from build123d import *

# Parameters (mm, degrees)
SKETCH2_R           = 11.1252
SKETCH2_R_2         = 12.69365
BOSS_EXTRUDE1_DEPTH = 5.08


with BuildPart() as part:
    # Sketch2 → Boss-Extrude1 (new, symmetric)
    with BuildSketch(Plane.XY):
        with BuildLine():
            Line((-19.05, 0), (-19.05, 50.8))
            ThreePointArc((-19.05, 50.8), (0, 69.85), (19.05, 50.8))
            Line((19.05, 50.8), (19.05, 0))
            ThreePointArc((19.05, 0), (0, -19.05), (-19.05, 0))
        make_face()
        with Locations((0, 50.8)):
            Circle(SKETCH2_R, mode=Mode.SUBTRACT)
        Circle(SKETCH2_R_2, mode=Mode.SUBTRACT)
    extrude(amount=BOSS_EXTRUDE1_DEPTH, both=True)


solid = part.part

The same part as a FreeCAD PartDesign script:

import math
import FreeCAD as App
import Part
import Sketcher
from FreeCAD import Vector
Q = App.Units.Quantity

doc = App.newDocument("Part")
body = doc.addObject("PartDesign::Body", "Body")

# Sketch on XY plane
sketch1 = doc.addObject("Sketcher::SketchObject", "Sketch")
body.addObject(sketch1)
sketch1.AttachmentSupport = (doc.XY_Plane, [""])
sketch1.MapMode = "FlatFace"
sketch1.addGeometry([
    Part.LineSegment(Vector(-19.05, 50.8, 0), Vector(-19.05, 0, 0)),  # 0
    Part.ArcOfCircle(Part.Circle(Vector(0, 0, 0), Vector(0, 0, 1), 19.05), math.radians(180), math.radians(360)),  # 1
    Part.LineSegment(Vector(19.05, 0, 0), Vector(19.05, 50.8, 0)),  # 2
    Part.ArcOfCircle(Part.Circle(Vector(0, 50.8, 0), Vector(0, 0, 1), 19.05), math.radians(0), math.radians(180)),  # 3
    Part.Circle(Vector(0, 0, 0), Vector(0, 0, 1), 12.69365),  # 4
    Part.Circle(Vector(0, 50.8, 0), Vector(0, 0, 1), 11.1252),  # 5
], False)
sketch1.addConstraint([
    Sketcher.Constraint("Tangent", 0, 2, 1, 1),
    Sketcher.Constraint("Tangent", 1, 2, 2, 1),
    Sketcher.Constraint("Tangent", 2, 2, 3, 1),
    Sketcher.Constraint("Tangent", 3, 2, 0, 1),
    Sketcher.Constraint("Vertical", 0),
    Sketcher.Constraint("Vertical", 2),
    Sketcher.Constraint("Coincident", 1, 3, -1, 1),
    Sketcher.Constraint("Coincident", 4, 3, -1, 1),
    Sketcher.Constraint("Coincident", 5, 3, 3, 3),
    Sketcher.Constraint("DistanceY", 0, 2, 0, 1, Q("2 in")),
    Sketcher.Constraint("Radius", 1, Q("0.75 in")),
    Sketcher.Constraint("Diameter", 5, Q("0.876 in")),
    Sketcher.Constraint("Diameter", 4, Q("0.9995 in")),
])
pad1 = doc.addObject("PartDesign::Pad", "Pad")
body.addObject(pad1)
pad1.Profile = sketch1
pad1.Length = Q("0.4 in")
pad1.Midplane = True

doc.recompute()
